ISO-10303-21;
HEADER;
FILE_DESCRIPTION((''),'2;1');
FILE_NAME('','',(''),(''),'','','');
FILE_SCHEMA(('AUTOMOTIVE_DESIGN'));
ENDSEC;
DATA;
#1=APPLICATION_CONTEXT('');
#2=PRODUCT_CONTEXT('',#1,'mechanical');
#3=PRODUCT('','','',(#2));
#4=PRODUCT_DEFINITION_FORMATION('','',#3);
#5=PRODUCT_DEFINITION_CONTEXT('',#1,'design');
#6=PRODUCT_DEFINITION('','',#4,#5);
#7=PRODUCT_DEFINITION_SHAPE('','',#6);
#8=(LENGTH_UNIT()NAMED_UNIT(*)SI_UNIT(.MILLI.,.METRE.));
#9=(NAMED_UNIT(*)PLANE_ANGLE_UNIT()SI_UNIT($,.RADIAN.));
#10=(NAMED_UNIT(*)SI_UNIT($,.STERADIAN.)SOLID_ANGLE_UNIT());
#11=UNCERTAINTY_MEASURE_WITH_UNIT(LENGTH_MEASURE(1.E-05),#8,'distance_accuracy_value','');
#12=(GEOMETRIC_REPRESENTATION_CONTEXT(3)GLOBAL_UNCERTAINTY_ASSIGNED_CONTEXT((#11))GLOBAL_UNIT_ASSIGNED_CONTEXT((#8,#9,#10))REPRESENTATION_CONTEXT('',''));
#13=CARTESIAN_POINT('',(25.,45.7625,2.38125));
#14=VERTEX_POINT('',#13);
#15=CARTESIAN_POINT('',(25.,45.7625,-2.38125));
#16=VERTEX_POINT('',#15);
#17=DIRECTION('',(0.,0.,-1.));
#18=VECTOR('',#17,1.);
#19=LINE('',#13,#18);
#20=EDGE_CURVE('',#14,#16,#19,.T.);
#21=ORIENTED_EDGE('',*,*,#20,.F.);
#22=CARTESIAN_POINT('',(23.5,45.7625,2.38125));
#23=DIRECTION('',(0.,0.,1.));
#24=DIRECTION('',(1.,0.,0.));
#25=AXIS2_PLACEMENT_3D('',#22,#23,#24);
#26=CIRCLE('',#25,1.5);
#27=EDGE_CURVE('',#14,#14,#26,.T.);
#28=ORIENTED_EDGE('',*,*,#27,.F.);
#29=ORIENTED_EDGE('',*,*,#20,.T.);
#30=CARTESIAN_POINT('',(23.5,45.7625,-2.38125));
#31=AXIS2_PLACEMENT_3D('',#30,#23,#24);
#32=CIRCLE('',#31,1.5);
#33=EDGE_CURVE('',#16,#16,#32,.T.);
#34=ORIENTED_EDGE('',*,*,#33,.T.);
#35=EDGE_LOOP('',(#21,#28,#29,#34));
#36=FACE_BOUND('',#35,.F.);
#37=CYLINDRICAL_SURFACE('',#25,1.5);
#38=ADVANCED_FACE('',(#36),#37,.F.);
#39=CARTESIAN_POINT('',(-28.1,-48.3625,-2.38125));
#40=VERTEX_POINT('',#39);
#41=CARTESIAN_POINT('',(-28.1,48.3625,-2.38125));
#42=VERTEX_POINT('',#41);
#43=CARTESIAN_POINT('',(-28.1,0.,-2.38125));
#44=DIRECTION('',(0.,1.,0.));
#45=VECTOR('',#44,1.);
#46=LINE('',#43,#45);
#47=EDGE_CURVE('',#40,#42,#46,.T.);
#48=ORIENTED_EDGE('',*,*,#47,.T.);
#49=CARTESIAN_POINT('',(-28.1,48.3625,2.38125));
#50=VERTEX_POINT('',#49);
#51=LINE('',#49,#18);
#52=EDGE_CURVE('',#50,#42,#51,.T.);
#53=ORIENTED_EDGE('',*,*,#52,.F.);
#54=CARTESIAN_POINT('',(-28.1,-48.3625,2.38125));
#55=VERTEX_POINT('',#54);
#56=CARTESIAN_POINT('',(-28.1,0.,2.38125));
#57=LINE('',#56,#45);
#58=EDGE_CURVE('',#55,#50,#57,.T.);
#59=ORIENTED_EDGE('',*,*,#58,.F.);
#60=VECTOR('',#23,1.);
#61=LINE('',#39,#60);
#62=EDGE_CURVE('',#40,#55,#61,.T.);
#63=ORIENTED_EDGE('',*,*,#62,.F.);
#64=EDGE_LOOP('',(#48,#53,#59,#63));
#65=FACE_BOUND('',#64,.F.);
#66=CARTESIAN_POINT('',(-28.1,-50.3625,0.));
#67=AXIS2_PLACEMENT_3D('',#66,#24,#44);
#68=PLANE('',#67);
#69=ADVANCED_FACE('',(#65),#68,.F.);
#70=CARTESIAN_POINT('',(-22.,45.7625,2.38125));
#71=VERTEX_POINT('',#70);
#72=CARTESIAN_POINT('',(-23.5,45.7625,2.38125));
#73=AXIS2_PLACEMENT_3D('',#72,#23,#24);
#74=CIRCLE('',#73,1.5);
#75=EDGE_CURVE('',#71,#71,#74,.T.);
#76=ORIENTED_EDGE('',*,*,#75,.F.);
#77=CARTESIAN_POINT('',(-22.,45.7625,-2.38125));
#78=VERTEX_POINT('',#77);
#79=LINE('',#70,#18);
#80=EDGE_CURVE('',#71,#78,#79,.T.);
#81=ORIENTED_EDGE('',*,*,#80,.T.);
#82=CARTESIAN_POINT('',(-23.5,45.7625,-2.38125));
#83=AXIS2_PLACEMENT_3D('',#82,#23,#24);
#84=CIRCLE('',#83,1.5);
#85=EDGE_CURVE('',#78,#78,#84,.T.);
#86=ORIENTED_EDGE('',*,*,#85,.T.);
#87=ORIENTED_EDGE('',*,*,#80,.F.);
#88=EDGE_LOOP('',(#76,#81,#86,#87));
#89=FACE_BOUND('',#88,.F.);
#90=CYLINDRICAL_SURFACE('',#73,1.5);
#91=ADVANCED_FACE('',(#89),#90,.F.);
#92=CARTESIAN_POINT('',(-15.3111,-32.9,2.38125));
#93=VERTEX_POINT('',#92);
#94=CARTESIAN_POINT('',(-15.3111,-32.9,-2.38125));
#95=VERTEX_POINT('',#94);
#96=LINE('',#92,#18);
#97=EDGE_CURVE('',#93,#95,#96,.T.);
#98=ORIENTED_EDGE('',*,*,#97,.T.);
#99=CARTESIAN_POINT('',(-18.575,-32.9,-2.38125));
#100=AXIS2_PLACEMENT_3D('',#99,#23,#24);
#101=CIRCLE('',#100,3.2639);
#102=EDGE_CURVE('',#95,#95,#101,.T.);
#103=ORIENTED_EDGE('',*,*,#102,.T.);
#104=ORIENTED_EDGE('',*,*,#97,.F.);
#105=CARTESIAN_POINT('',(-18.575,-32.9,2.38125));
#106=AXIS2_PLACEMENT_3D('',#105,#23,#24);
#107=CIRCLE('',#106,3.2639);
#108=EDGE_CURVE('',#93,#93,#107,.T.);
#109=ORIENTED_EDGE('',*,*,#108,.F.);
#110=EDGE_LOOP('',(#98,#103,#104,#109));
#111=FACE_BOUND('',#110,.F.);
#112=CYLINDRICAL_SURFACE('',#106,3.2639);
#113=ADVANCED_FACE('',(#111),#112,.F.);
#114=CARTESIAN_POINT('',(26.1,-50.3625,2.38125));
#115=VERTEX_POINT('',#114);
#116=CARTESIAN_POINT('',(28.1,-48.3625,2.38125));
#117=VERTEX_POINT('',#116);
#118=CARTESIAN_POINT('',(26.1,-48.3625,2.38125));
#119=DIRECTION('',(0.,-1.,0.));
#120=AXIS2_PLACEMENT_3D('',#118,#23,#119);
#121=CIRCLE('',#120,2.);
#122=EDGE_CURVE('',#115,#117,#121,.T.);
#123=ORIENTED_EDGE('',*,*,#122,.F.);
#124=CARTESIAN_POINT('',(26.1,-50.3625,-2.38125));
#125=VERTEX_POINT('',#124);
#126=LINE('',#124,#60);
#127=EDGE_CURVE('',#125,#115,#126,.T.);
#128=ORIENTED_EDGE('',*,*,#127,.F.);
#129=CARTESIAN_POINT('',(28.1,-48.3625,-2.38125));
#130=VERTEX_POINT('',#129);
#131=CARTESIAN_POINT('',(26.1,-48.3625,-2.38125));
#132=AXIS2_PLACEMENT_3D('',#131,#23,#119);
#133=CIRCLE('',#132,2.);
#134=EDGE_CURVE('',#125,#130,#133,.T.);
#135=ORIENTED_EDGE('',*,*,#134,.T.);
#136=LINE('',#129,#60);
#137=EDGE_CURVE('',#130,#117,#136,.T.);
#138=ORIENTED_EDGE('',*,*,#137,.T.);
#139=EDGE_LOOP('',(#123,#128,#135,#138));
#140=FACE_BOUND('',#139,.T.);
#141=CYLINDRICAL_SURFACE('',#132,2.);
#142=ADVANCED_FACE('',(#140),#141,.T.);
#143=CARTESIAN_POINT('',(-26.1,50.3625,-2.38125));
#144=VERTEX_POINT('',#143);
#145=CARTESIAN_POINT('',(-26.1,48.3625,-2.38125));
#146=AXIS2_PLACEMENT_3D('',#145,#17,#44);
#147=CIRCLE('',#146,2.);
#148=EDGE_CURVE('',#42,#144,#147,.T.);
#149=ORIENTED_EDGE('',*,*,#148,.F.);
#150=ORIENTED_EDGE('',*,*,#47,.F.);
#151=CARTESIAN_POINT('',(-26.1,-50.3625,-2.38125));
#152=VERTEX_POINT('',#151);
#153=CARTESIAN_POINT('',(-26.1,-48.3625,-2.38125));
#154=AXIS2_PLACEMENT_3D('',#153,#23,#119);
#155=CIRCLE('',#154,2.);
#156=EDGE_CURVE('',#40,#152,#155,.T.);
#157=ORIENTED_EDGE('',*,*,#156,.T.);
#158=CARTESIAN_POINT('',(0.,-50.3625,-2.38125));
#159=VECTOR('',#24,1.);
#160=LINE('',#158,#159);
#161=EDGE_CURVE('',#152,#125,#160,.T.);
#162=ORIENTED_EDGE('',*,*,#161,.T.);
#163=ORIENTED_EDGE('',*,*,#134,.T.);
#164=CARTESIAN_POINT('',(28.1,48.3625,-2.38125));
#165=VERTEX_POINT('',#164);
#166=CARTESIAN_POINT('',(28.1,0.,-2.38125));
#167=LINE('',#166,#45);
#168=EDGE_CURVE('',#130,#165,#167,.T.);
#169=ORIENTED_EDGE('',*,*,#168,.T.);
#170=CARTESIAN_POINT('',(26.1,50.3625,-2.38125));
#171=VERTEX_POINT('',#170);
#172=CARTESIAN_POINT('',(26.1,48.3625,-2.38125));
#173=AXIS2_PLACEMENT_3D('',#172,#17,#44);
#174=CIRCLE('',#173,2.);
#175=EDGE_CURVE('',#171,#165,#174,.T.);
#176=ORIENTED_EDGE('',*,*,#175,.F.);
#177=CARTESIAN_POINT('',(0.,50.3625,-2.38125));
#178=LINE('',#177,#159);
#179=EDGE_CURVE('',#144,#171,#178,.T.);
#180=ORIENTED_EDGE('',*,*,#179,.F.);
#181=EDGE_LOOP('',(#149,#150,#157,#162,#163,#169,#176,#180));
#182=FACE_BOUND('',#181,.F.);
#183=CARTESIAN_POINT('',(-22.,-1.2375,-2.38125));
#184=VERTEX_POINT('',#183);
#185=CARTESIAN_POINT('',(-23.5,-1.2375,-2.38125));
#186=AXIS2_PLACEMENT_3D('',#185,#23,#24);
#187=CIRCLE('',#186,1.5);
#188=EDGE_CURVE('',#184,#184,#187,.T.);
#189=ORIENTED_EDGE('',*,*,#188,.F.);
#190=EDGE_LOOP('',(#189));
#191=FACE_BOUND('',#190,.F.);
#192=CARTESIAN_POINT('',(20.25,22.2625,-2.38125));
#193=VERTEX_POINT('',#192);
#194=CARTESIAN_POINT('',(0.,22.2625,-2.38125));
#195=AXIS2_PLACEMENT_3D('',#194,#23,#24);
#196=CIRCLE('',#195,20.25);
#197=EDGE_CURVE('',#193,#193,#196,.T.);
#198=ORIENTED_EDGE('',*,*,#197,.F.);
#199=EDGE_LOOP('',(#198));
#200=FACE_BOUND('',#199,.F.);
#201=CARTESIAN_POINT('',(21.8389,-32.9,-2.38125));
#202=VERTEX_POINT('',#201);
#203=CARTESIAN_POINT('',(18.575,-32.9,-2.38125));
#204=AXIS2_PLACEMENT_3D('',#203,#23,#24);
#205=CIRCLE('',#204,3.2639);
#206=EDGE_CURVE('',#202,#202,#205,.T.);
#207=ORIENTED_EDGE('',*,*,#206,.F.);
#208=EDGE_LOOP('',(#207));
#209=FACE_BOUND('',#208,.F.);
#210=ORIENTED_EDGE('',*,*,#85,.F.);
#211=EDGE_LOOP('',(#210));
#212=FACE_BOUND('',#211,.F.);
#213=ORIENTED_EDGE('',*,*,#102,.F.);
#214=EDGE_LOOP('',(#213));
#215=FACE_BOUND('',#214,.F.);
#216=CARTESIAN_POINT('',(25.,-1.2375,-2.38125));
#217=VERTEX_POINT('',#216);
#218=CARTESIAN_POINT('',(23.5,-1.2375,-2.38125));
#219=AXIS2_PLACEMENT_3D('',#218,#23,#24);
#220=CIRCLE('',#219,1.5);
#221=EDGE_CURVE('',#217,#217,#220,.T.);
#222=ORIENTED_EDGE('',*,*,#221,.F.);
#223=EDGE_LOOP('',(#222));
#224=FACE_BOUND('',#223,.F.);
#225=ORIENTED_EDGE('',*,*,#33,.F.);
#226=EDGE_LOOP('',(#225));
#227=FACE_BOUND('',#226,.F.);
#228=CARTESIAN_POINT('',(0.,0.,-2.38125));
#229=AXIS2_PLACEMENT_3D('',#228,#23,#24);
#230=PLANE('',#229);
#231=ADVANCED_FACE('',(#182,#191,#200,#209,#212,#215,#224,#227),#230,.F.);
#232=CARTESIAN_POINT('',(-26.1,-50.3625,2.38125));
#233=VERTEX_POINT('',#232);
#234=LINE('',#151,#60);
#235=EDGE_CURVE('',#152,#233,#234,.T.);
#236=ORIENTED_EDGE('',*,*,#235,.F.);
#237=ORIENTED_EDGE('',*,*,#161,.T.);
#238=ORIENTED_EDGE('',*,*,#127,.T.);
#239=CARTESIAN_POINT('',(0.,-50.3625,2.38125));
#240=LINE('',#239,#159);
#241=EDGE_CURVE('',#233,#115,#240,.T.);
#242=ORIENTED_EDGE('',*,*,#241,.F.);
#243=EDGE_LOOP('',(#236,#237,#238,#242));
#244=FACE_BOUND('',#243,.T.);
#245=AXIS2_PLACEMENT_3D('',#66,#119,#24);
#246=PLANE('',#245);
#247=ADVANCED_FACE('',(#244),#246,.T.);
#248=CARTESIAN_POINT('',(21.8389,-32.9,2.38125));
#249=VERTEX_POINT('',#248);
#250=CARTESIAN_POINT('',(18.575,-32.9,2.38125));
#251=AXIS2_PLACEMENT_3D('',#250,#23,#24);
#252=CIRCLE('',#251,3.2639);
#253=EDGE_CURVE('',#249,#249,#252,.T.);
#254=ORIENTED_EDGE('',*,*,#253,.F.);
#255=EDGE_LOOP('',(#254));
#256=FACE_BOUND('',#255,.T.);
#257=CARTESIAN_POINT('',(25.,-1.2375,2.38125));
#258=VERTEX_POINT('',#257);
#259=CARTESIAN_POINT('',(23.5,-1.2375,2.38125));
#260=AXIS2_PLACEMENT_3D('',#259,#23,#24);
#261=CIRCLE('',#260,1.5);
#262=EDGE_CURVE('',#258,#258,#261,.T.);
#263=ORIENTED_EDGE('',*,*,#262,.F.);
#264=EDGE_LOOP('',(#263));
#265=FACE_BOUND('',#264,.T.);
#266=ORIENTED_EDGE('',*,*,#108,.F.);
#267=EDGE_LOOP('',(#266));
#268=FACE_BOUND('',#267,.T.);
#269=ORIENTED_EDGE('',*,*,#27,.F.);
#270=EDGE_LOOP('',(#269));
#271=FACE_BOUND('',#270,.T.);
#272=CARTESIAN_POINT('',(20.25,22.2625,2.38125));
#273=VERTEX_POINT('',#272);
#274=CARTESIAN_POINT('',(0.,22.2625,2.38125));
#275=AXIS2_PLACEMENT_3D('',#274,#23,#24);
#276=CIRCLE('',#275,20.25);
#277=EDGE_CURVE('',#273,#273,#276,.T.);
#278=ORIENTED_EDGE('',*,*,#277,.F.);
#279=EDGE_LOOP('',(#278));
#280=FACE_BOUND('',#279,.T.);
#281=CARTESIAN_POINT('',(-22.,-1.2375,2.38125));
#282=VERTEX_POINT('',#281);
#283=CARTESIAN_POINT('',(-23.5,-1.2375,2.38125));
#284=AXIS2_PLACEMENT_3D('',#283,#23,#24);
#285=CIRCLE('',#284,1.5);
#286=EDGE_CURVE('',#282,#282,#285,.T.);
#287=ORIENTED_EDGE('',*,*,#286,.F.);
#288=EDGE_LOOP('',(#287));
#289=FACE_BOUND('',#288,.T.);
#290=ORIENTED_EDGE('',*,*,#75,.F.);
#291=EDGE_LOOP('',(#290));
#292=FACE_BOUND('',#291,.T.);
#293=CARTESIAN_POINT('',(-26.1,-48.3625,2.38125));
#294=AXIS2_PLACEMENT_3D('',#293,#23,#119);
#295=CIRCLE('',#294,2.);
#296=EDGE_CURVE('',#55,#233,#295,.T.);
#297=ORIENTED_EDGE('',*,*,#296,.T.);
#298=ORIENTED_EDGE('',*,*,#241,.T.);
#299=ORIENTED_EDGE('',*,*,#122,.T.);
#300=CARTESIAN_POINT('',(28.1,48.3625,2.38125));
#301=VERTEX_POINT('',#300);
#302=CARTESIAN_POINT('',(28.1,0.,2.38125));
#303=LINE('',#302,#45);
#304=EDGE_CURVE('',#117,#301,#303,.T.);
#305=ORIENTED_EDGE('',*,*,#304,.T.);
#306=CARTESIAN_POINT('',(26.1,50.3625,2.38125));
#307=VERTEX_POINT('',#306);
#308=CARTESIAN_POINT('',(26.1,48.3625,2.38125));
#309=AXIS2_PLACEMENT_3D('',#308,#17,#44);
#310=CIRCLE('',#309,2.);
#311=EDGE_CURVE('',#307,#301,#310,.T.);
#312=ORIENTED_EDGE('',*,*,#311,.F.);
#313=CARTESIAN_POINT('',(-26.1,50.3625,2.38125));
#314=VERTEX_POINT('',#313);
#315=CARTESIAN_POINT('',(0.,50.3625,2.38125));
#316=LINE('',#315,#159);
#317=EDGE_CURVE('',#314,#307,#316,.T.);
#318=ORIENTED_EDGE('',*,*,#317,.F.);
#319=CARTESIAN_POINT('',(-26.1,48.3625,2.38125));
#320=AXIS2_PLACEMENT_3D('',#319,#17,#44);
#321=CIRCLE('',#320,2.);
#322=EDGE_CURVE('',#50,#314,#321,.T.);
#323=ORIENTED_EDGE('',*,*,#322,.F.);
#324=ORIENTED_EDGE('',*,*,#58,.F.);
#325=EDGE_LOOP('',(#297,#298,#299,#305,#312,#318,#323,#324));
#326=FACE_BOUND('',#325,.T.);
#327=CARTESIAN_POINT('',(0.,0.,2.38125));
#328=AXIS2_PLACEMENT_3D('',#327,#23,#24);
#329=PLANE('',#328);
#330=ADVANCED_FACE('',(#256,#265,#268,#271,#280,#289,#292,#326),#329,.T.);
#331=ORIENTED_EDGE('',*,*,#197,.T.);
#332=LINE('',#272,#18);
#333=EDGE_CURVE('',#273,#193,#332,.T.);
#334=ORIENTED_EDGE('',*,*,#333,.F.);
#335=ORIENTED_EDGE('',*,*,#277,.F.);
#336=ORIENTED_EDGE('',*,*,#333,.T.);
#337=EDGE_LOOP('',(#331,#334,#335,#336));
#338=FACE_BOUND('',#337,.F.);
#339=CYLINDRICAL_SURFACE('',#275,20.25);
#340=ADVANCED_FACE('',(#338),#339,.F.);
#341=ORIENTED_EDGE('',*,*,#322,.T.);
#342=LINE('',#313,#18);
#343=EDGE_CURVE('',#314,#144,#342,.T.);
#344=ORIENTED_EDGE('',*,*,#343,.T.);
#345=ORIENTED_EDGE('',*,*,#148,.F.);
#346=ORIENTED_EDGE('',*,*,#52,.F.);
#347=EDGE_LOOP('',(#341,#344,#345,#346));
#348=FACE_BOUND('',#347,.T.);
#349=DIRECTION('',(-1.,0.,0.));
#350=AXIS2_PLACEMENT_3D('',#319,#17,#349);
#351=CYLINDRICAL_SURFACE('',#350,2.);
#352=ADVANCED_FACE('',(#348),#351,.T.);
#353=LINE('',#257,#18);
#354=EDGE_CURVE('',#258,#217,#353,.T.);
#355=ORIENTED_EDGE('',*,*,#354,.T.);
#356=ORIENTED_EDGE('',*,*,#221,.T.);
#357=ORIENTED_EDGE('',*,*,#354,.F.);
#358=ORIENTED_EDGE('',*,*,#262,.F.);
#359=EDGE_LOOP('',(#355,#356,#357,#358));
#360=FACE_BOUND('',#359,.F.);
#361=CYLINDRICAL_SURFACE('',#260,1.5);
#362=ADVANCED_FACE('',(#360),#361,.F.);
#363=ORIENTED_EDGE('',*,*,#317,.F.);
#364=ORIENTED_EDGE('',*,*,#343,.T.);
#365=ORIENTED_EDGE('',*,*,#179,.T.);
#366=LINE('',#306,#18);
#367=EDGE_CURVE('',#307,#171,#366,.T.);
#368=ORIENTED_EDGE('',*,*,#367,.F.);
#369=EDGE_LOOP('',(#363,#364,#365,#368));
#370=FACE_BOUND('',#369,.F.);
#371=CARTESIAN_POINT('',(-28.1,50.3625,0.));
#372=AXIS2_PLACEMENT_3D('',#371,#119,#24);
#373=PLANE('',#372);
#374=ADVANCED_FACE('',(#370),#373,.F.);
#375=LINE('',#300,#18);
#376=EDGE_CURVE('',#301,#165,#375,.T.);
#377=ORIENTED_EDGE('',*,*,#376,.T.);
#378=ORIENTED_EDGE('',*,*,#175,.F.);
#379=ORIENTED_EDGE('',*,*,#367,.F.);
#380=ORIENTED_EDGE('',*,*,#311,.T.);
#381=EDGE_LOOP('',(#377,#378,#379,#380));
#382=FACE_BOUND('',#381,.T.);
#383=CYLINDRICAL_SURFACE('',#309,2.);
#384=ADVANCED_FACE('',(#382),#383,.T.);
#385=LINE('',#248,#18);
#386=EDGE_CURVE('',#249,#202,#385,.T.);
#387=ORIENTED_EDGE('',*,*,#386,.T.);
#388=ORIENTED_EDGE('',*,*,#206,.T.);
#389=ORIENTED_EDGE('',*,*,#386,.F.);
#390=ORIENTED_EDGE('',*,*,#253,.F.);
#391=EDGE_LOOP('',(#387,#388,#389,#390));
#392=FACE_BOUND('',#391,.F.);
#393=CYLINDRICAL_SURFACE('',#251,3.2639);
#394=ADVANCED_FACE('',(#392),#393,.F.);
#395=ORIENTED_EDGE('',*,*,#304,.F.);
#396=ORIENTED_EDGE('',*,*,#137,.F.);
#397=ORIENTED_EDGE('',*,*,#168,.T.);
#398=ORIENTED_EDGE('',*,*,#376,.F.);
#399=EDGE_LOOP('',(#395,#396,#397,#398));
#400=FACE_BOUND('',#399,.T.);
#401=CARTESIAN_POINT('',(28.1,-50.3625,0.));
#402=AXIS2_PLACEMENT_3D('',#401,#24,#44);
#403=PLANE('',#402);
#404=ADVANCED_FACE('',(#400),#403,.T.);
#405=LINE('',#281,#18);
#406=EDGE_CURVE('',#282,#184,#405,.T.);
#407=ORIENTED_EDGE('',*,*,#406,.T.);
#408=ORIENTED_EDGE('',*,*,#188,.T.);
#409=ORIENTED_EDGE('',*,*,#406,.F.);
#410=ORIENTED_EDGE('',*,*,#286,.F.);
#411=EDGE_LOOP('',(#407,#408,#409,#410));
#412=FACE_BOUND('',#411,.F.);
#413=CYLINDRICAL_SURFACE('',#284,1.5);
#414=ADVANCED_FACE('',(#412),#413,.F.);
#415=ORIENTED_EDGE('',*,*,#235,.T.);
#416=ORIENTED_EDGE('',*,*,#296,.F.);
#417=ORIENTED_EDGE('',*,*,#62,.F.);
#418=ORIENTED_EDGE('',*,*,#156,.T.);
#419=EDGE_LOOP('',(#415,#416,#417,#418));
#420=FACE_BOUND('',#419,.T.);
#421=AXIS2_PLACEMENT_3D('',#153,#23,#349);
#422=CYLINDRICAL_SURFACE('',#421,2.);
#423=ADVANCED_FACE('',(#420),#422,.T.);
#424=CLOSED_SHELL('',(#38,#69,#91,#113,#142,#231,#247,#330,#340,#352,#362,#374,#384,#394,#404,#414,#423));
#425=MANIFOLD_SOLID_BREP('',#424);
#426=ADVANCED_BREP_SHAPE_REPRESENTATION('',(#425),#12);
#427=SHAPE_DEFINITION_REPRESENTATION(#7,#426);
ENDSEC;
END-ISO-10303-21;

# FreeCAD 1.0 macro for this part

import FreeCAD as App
import Part
import Sketcher

V = App.Vector
Q = App.Units.Quantity


def edges_at(feature, points):
    """Names of the edges that pass closest to the given points."""
    edges = feature.Shape.Edges
    near = lambda p: min(range(len(edges)), key=lambda i: edges[i].distToShape(Part.Vertex(*p))[0])
    return sorted({f"Edge{near(p) + 1}" for p in points})


def add_polygon(sketch, points):
    """Adds a closed chain of lines whose ends are joined by coincident constraints."""
    first, n = sketch.GeometryCount, len(points)
    for a, b in zip(points, points[1:] + points[:1]):
        sketch.addGeometry(Part.LineSegment(App.Vector(*a, 0), App.Vector(*b, 0)), False)
    for i in range(n):
        sketch.addConstraint(Sketcher.Constraint("Coincident", first + i, 2, first + (i + 1) % n, 1))

doc = App.newDocument("Part")
body = doc.addObject("PartDesign::Body", "Body")

# Sketch on XY plane
sketch1 = doc.addObject("Sketcher::SketchObject", "Sketch")
body.addObject(sketch1)
sketch1.AttachmentSupport = (doc.XY_Plane, [""])
sketch1.MapMode = "FlatFace"
add_polygon(sketch1, [(-28.1, 50.3625), (-28.1, -50.3625), (28.1, -50.3625), (28.1, 50.3625)])  # lines 0-3
sketch1.addConstraint(Sketcher.Constraint("Vertical", 0))
sketch1.addConstraint(Sketcher.Constraint("Horizontal", 1))
sketch1.addConstraint(Sketcher.Constraint("Vertical", 2))
sketch1.addConstraint(Sketcher.Constraint("Horizontal", 3))
sketch1.addConstraint(Sketcher.Constraint("Symmetric", 0, 2, 2, 2, -1, 1))
sketch1.addConstraint(Sketcher.Constraint("DistanceX", 1, 1, 1, 2, Q("56.2 mm")))
sketch1.addConstraint(Sketcher.Constraint("DistanceY", 0, 2, 0, 1, Q("100.725 mm")))
pad1 = doc.addObject("PartDesign::Pad", "Pad")
body.addObject(pad1)
pad1.Profile = sketch1
pad1.Length = 4.7625
pad1.Midplane = True

# Sketch on XY plane
sketch2 = doc.addObject("Sketcher::SketchObject", "Sketch001")
body.addObject(sketch2)
sketch2.AttachmentSupport = (doc.XY_Plane, [""])
sketch2.MapMode = "FlatFace"
sketch2.AttachmentOffset = App.Placement(V(0, 0, 2.38125), App.Rotation())
sketch2.addGeometry(Part.Circle(V(0, 22.2625, 0), V(0, 0, 1), 20.25), False)
sketch2.addGeometry(Part.Circle(V(-23.5, 45.7625, 0), V(0, 0, 1), 1.5), False)
sketch2.addGeometry(Part.Circle(V(23.5, 45.7625, 0), V(0, 0, 1), 1.5), False)
sketch2.addGeometry(Part.Circle(V(-23.5, -1.2375, 0), V(0, 0, 1), 1.5), False)
sketch2.addGeometry(Part.Circle(V(23.5, -1.2375, 0), V(0, 0, 1), 1.5), False)
sketch2.addGeometry(Part.Circle(V(-18.575, -32.9, 0), V(0, 0, 1), 3.2639), False)
sketch2.addGeometry(Part.Circle(V(18.575, -32.9, 0), V(0, 0, 1), 3.2639), False)
sketch2.addConstraint(Sketcher.Constraint("Equal", 1, 2))
sketch2.addConstraint(Sketcher.Constraint("Equal", 2, 3))
sketch2.addConstraint(Sketcher.Constraint("Equal", 3, 4))
sketch2.addConstraint(Sketcher.Constraint("Equal", 5, 6))
sketch2.addConstraint(Sketcher.Constraint("Symmetric", 1, 3, 2, 3, -2))
sketch2.addConstraint(Sketcher.Constraint("Symmetric", 3, 3, 4, 3, -2))
sketch2.addConstraint(Sketcher.Constraint("Symmetric", 5, 3, 6, 3, -2))
sketch2.addConstraint(Sketcher.Constraint("PointOnObject", 0, 3, -2))
sketch2.addConstraint(Sketcher.Constraint("Vertical", 1, 3, 3, 3))
sketch2.addConstraint(Sketcher.Constraint("Diameter", 1, Q("3 mm")))
sketch2.addConstraint(Sketcher.Constraint("Diameter", 0, Q("40.5 mm")))
sketch2.addConstraint(Sketcher.Constraint("DistanceX", 1, 3, 2, 3, Q("47 mm")))
sketch2.addConstraint(Sketcher.Constraint("DistanceY", 3, 3, 1, 3, Q("47 mm")))
sketch2.addConstraint(Sketcher.Constraint("Diameter", 5, Q("6.5278 mm")))
sketch2.addConstraint(Sketcher.Constraint("DistanceY", 5, 3, -1, 1, Q("32.9 mm")))
sketch2.addConstraint(Sketcher.Constraint("DistanceY", 0, 3, 1, 3, Q("23.5 mm")))
sketch2.addConstraint(Sketcher.Constraint("DistanceX", 5, 3, 6, 3, Q("37.15 mm")))
sketch2.addConstraint(Sketcher.Constraint("DistanceY", -1, 1, 0, 3, Q("22.2625 mm")))
pocket1 = doc.addObject("PartDesign::Pocket", "Pocket")
body.addObject(pocket1)
pocket1.Profile = sketch2
pocket1.Type = "ThroughAll"
doc.recompute()

fillet = doc.addObject("PartDesign::Fillet", "Fillet")
body.addObject(fillet)
fillet.Base = (pocket1, edges_at(pocket1, [
    (28.1, -50.362, 0),
    (-28.1, -50.362, 0),
    (-28.1, 50.362, 0),
    (28.1, 50.362, 0),
]))
fillet.Radius = 2

doc.recompute()
